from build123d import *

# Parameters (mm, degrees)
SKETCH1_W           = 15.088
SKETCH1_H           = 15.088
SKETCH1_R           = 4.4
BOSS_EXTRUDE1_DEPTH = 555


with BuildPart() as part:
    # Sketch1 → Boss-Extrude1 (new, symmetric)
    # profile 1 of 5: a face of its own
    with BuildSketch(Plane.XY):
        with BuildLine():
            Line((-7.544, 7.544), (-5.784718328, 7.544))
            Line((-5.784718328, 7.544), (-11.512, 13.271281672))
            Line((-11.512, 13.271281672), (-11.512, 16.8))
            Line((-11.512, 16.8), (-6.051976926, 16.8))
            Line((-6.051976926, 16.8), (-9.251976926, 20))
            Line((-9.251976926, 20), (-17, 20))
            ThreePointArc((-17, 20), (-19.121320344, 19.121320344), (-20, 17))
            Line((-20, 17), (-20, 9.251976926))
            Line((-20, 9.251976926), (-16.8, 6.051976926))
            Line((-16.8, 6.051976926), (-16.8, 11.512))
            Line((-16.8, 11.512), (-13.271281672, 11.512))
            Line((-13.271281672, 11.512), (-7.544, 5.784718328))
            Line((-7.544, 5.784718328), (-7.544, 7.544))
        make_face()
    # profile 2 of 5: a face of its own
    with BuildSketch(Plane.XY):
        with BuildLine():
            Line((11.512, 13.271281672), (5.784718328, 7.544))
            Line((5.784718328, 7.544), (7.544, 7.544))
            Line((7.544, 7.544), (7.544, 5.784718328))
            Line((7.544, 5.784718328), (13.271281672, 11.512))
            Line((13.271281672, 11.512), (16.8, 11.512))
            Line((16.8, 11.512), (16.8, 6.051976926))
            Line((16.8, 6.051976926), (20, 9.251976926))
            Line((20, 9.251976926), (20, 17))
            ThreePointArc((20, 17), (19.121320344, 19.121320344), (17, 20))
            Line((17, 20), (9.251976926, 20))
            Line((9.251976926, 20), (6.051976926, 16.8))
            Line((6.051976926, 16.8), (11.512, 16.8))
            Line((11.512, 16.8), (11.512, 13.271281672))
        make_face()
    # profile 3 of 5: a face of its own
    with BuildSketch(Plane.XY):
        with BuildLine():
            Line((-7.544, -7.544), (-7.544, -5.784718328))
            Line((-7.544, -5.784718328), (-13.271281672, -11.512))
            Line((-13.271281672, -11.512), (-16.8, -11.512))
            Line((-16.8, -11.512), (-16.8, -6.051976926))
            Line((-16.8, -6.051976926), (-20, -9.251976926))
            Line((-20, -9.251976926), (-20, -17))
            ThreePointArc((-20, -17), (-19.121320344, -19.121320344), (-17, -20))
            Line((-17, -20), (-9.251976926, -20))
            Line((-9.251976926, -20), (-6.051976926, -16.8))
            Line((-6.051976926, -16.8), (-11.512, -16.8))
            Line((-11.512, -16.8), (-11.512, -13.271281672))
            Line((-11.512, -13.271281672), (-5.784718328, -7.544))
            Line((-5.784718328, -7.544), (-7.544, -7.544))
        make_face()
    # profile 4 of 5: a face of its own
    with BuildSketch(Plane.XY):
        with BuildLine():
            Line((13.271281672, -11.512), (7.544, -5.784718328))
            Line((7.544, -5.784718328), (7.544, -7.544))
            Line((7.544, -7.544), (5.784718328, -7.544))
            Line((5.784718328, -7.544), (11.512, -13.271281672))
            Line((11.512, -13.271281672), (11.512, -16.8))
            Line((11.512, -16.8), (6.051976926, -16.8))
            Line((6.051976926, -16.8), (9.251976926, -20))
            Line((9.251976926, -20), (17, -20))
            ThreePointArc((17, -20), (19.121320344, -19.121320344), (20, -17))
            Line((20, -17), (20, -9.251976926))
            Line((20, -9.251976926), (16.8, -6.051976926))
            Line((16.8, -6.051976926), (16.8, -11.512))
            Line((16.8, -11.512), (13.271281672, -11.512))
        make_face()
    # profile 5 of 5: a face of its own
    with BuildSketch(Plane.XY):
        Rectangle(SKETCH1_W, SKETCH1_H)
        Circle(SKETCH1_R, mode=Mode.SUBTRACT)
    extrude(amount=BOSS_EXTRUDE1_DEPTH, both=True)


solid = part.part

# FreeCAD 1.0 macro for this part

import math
import FreeCAD as App
import Part
import Sketcher
Q = App.Units.Quantity

doc = App.newDocument("Part")
body = doc.addObject("PartDesign::Body", "Body")

# Sketch on XY plane
sketch1 = body.newObject("Sketcher::SketchObject", "Sketch")
sketch1.AttachmentSupport = (doc.getObject("XY_Plane"), [""])
sketch1.MapMode = "FlatFace"
sketch1.addGeometry([
    Part.LineSegment(App.Vector(-5.784718, 7.544, 0), App.Vector(-11.512, 13.271282, 0)),  # 0
    Part.LineSegment(App.Vector(-11.512, 13.271282, 0), App.Vector(-11.512, 16.8, 0)),  # 1
    Part.LineSegment(App.Vector(-11.512, 16.8, 0), App.Vector(-6.051977, 16.8, 0)),  # 2
    Part.LineSegment(App.Vector(-6.051977, 16.8, 0), App.Vector(-9.251977, 20, 0)),  # 3
    Part.LineSegment(App.Vector(-9.251977, 20, 0), App.Vector(-17, 20, 0)),  # 4
    Part.ArcOfCircle(Part.Circle(App.Vector(-17, 17, 0), App.Vector(0, 0, 1), 3), math.radians(90), math.radians(180)),  # 5
    Part.LineSegment(App.Vector(-20, 17, 0), App.Vector(-20, 9.251977, 0)),  # 6
    Part.LineSegment(App.Vector(-20, 9.251977, 0), App.Vector(-16.8, 6.051977, 0)),  # 7
    Part.LineSegment(App.Vector(-16.8, 6.051977, 0), App.Vector(-16.8, 11.512, 0)),  # 8
    Part.LineSegment(App.Vector(-16.8, 11.512, 0), App.Vector(-13.271282, 11.512, 0)),  # 9
    Part.LineSegment(App.Vector(-13.271282, 11.512, 0), App.Vector(-7.544, 5.784718, 0)),  # 10
    Part.LineSegment(App.Vector(-7.544, 5.784718, 0), App.Vector(-7.544, -5.784718, 0)),  # 11
    Part.LineSegment(App.Vector(-7.544, -5.784718, 0), App.Vector(-13.271282, -11.512, 0)),  # 12
    Part.LineSegment(App.Vector(-13.271282, -11.512, 0), App.Vector(-16.8, -11.512, 0)),  # 13
    Part.LineSegment(App.Vector(-16.8, -11.512, 0), App.Vector(-16.8, -6.051977, 0)),  # 14
    Part.LineSegment(App.Vector(-16.8, -6.051977, 0), App.Vector(-20, -9.251977, 0)),  # 15
    Part.LineSegment(App.Vector(-20, -9.251977, 0), App.Vector(-20, -17, 0)),  # 16
    Part.ArcOfCircle(Part.Circle(App.Vector(-17, -17, 0), App.Vector(0, 0, 1), 3), math.radians(180), math.radians(270)),  # 17
    Part.LineSegment(App.Vector(-17, -20, 0), App.Vector(-9.251977, -20, 0)),  # 18
    Part.LineSegment(App.Vector(-9.251977, -20, 0), App.Vector(-6.051977, -16.8, 0)),  # 19
    Part.LineSegment(App.Vector(-6.051977, -16.8, 0), App.Vector(-11.512, -16.8, 0)),  # 20
    Part.LineSegment(App.Vector(-11.512, -16.8, 0), App.Vector(-11.512, -13.271282, 0)),  # 21
    Part.LineSegment(App.Vector(-11.512, -13.271282, 0), App.Vector(-5.784718, -7.544, 0)),  # 22
    Part.LineSegment(App.Vector(-5.784718, -7.544, 0), App.Vector(5.784718, -7.544, 0)),  # 23
    Part.LineSegment(App.Vector(5.784718, -7.544, 0), App.Vector(11.512, -13.271282, 0)),  # 24
    Part.LineSegment(App.Vector(11.512, -13.271282, 0), App.Vector(11.512, -16.8, 0)),  # 25
    Part.LineSegment(App.Vector(11.512, -16.8, 0), App.Vector(6.051977, -16.8, 0)),  # 26
    Part.LineSegment(App.Vector(6.051977, -16.8, 0), App.Vector(9.251977, -20, 0)),  # 27
    Part.LineSegment(App.Vector(9.251977, -20, 0), App.Vector(17, -20, 0)),  # 28
    Part.ArcOfCircle(Part.Circle(App.Vector(17, -17, 0), App.Vector(0, 0, 1), 3), math.radians(-90), math.radians(0)),  # 29
    Part.LineSegment(App.Vector(20, -17, 0), App.Vector(20, -9.251977, 0)),  # 30
    Part.LineSegment(App.Vector(20, -9.251977, 0), App.Vector(16.8, -6.051977, 0)),  # 31
    Part.LineSegment(App.Vector(16.8, -6.051977, 0), App.Vector(16.8, -11.512, 0)),  # 32
    Part.LineSegment(App.Vector(16.8, -11.512, 0), App.Vector(13.271282, -11.512, 0)),  # 33
    Part.LineSegment(App.Vector(13.271282, -11.512, 0), App.Vector(7.544, -5.784718, 0)),  # 34
    Part.LineSegment(App.Vector(7.544, -5.784718, 0), App.Vector(7.544, 5.784718, 0)),  # 35
    Part.LineSegment(App.Vector(7.544, 5.784718, 0), App.Vector(13.271282, 11.512, 0)),  # 36
    Part.LineSegment(App.Vector(13.271282, 11.512, 0), App.Vector(16.8, 11.512, 0)),  # 37
    Part.LineSegment(App.Vector(16.8, 11.512, 0), App.Vector(16.8, 6.051977, 0)),  # 38
    Part.LineSegment(App.Vector(16.8, 6.051977, 0), App.Vector(20, 9.251977, 0)),  # 39
    Part.LineSegment(App.Vector(20, 9.251977, 0), App.Vector(20, 17, 0)),  # 40
    Part.ArcOfCircle(Part.Circle(App.Vector(17, 17, 0), App.Vector(0, 0, 1), 3), math.radians(0), math.radians(90)),  # 41
    Part.LineSegment(App.Vector(17, 20, 0), App.Vector(9.251977, 20, 0)),  # 42
    Part.LineSegment(App.Vector(9.251977, 20, 0), App.Vector(6.051977, 16.8, 0)),  # 43
    Part.LineSegment(App.Vector(6.051977, 16.8, 0), App.Vector(11.512, 16.8, 0)),  # 44
    Part.LineSegment(App.Vector(11.512, 16.8, 0), App.Vector(11.512, 13.271282, 0)),  # 45
    Part.LineSegment(App.Vector(11.512, 13.271282, 0), App.Vector(5.784718, 7.544, 0)),  # 46
    Part.LineSegment(App.Vector(5.784718, 7.544, 0), App.Vector(-5.784718, 7.544, 0)),  # 47
    Part.Circle(App.Vector(0, 0, 0), App.Vector(0, 0, 1), 4.4),  # 48
], False)
sketch1.addConstraint([
    Sketcher.Constraint("Coincident", 0, 2, 1, 1),
    Sketcher.Constraint("Coincident", 1, 2, 2, 1),
    Sketcher.Constraint("Coincident", 2, 2, 3, 1),
    Sketcher.Constraint("Coincident", 3, 2, 4, 1),
    Sketcher.Constraint("Tangent", 4, 2, 5, 1),
    Sketcher.Constraint("Tangent", 5, 2, 6, 1),
    Sketcher.Constraint("Coincident", 6, 2, 7, 1),
    Sketcher.Constraint("Coincident", 7, 2, 8, 1),
    Sketcher.Constraint("Coincident", 8, 2, 9, 1),
    Sketcher.Constraint("Coincident", 9, 2, 10, 1),
    Sketcher.Constraint("Coincident", 10, 2, 11, 1),
    Sketcher.Constraint("Coincident", 11, 2, 12, 1),
    Sketcher.Constraint("Coincident", 12, 2, 13, 1),
    Sketcher.Constraint("Coincident", 13, 2, 14, 1),
    Sketcher.Constraint("Coincident", 14, 2, 15, 1),
    Sketcher.Constraint("Coincident", 15, 2, 16, 1),
    Sketcher.Constraint("Tangent", 16, 2, 17, 1),
    Sketcher.Constraint("Tangent", 17, 2, 18, 1),
    Sketcher.Constraint("Coincident", 18, 2, 19, 1),
    Sketcher.Constraint("Coincident", 19, 2, 20, 1),
    Sketcher.Constraint("Coincident", 20, 2, 21, 1),
    Sketcher.Constraint("Coincident", 21, 2, 22, 1),
    Sketcher.Constraint("Coincident", 22, 2, 23, 1),
    Sketcher.Constraint("Coincident", 23, 2, 24, 1),
    Sketcher.Constraint("Coincident", 24, 2, 25, 1),
    Sketcher.Constraint("Coincident", 25, 2, 26, 1),
    Sketcher.Constraint("Coincident", 26, 2, 27, 1),
    Sketcher.Constraint("Coincident", 27, 2, 28, 1),
    Sketcher.Constraint("Tangent", 28, 2, 29, 1),
    Sketcher.Constraint("Tangent", 29, 2, 30, 1),
    Sketcher.Constraint("Coincident", 30, 2, 31, 1),
    Sketcher.Constraint("Coincident", 31, 2, 32, 1),
    Sketcher.Constraint("Coincident", 32, 2, 33, 1),
    Sketcher.Constraint("Coincident", 33, 2, 34, 1),
    Sketcher.Constraint("Coincident", 34, 2, 35, 1),
    Sketcher.Constraint("Coincident", 35, 2, 36, 1),
    Sketcher.Constraint("Coincident", 36, 2, 37, 1),
    Sketcher.Constraint("Coincident", 37, 2, 38, 1),
    Sketcher.Constraint("Coincident", 38, 2, 39, 1),
    Sketcher.Constraint("Coincident", 39, 2, 40, 1),
    Sketcher.Constraint("Tangent", 40, 2, 41, 1),
    Sketcher.Constraint("Tangent", 41, 2, 42, 1),
    Sketcher.Constraint("Coincident", 42, 2, 43, 1),
    Sketcher.Constraint("Coincident", 43, 2, 44, 1),
    Sketcher.Constraint("Coincident", 44, 2, 45, 1),
    Sketcher.Constraint("Coincident", 45, 2, 46, 1),
    Sketcher.Constraint("Coincident", 46, 2, 47, 1),
    Sketcher.Constraint("Coincident", 47, 2, 0, 1),
    Sketcher.Constraint("Vertical", 1),
    Sketcher.Constraint("Horizontal", 2),
    Sketcher.Constraint("Horizontal", 4),
    Sketcher.Constraint("Vertical", 6),
    Sketcher.Constraint("Vertical", 8),
    Sketcher.Constraint("Horizontal", 9),
    Sketcher.Constraint("Vertical", 11),
    Sketcher.Constraint("Horizontal", 13),
    Sketcher.Constraint("Vertical", 14),
    Sketcher.Constraint("Vertical", 16),
    Sketcher.Constraint("Horizontal", 18),
    Sketcher.Constraint("Horizontal", 20),
    Sketcher.Constraint("Vertical", 21),
    Sketcher.Constraint("Horizontal", 23),
    Sketcher.Constraint("Vertical", 25),
    Sketcher.Constraint("Horizontal", 26),
    Sketcher.Constraint("Horizontal", 28),
    Sketcher.Constraint("Vertical", 30),
    Sketcher.Constraint("Vertical", 32),
    Sketcher.Constraint("Horizontal", 33),
    Sketcher.Constraint("Vertical", 35),
    Sketcher.Constraint("Horizontal", 37),
    Sketcher.Constraint("Vertical", 38),
    Sketcher.Constraint("Vertical", 40),
    Sketcher.Constraint("Horizontal", 42),
    Sketcher.Constraint("Horizontal", 44),
    Sketcher.Constraint("Vertical", 45),
    Sketcher.Constraint("Horizontal", 47),
    Sketcher.Constraint("Coincident", 48, 3, -1, 1),
    Sketcher.Constraint("Equal", 5, 17),
    Sketcher.Constraint("Equal", 17, 29),
    Sketcher.Constraint("Equal", 29, 41),
    Sketcher.Constraint("Symmetric", 5, 3, 29, 3, -1, 1),
    Sketcher.Constraint("Symmetric", 17, 3, 41, 3, -1, 1),
    Sketcher.Constraint("Symmetric", 0, 2, 24, 2, -1, 1),
    Sketcher.Constraint("Symmetric", 2, 2, 26, 2, -1, 1),
    Sketcher.Constraint("Symmetric", 7, 2, 31, 2, -1, 1),
    Sketcher.Constraint("Symmetric", 9, 2, 33, 2, -1, 1),
    Sketcher.Constraint("Symmetric", 10, 2, 34, 2, -1, 1),
    Sketcher.Constraint("Symmetric", 12, 2, 36, 2, -1, 1),
    Sketcher.Constraint("Symmetric", 14, 2, 38, 2, -1, 1),
    Sketcher.Constraint("Symmetric", 19, 2, 43, 2, -1, 1),
    Sketcher.Constraint("Symmetric", 21, 2, 45, 2, -1, 1),
    Sketcher.Constraint("Symmetric", 22, 2, 46, 2, -1, 1),
    Sketcher.Constraint("Symmetric", 17, 3, 29, 3, -2),
    Sketcher.Constraint("Symmetric", 21, 2, 24, 2, -2),
    Sketcher.Constraint("Symmetric", 19, 2, 26, 2, -2),
    Sketcher.Constraint("Symmetric", 14, 2, 31, 2, -2),
    Sketcher.Constraint("Symmetric", 12, 2, 33, 2, -2),
    Sketcher.Constraint("Parallel", 0, 3),
    Sketcher.Constraint("Parallel", 3, 7),
    Sketcher.Constraint("Parallel", 7, 10),
    Sketcher.Constraint("Perpendicular", 10, 12),
    Sketcher.Constraint("Parallel", 12, 15),
    Sketcher.Constraint("Parallel", 15, 19),
    Sketcher.Constraint("Parallel", 19, 22),
    Sketcher.Constraint("Perpendicular", 22, 24),
    Sketcher.Constraint("Parallel", 24, 27),
    Sketcher.Constraint("Parallel", 27, 31),
    Sketcher.Constraint("Perpendicular", 34, 36),
    Sketcher.Constraint("Parallel", 36, 39),
    Sketcher.Constraint("Parallel", 39, 43),
    Sketcher.Constraint("Horizontal", 15, 2, 30, 2),
    Sketcher.Constraint("Equal", 37, 1),
    Sketcher.Constraint("Equal", 42, 6),
    Sketcher.Constraint("Equal", 44, 8),
    Sketcher.Constraint("Equal", 47, 11),
    Sketcher.Constraint("Equal", 3, 7),
    Sketcher.Constraint("Equal", 0, 10),
    Sketcher.Constraint("Radius", 5, Q("3 mm")),
    Sketcher.Constraint("Diameter", 48, Q("8.8 mm")),
    Sketcher.Constraint("DistanceX", 5, 3, -1, 1, Q("17 mm")),
    Sketcher.Constraint("DistanceY", -1, 1, 1, 2, Q("16.8 mm")),
    Sketcher.Constraint("DistanceX", 0, 2, -1, 1, Q("11.512 mm")),
    Sketcher.Constraint("DistanceX", 10, 2, -1, 1, Q("7.544 mm")),
    Sketcher.Constraint("Distance", 0, Q("8.099599 mm")),
    Sketcher.Constraint("DistanceX", 2, 1, 2, 2, Q("5.460023 mm")),
])
pad1 = body.newObject("PartDesign::Pad", "Pad")
pad1.Profile = sketch1
pad1.Length = 1110
pad1.Midplane = True

doc.recompute()
